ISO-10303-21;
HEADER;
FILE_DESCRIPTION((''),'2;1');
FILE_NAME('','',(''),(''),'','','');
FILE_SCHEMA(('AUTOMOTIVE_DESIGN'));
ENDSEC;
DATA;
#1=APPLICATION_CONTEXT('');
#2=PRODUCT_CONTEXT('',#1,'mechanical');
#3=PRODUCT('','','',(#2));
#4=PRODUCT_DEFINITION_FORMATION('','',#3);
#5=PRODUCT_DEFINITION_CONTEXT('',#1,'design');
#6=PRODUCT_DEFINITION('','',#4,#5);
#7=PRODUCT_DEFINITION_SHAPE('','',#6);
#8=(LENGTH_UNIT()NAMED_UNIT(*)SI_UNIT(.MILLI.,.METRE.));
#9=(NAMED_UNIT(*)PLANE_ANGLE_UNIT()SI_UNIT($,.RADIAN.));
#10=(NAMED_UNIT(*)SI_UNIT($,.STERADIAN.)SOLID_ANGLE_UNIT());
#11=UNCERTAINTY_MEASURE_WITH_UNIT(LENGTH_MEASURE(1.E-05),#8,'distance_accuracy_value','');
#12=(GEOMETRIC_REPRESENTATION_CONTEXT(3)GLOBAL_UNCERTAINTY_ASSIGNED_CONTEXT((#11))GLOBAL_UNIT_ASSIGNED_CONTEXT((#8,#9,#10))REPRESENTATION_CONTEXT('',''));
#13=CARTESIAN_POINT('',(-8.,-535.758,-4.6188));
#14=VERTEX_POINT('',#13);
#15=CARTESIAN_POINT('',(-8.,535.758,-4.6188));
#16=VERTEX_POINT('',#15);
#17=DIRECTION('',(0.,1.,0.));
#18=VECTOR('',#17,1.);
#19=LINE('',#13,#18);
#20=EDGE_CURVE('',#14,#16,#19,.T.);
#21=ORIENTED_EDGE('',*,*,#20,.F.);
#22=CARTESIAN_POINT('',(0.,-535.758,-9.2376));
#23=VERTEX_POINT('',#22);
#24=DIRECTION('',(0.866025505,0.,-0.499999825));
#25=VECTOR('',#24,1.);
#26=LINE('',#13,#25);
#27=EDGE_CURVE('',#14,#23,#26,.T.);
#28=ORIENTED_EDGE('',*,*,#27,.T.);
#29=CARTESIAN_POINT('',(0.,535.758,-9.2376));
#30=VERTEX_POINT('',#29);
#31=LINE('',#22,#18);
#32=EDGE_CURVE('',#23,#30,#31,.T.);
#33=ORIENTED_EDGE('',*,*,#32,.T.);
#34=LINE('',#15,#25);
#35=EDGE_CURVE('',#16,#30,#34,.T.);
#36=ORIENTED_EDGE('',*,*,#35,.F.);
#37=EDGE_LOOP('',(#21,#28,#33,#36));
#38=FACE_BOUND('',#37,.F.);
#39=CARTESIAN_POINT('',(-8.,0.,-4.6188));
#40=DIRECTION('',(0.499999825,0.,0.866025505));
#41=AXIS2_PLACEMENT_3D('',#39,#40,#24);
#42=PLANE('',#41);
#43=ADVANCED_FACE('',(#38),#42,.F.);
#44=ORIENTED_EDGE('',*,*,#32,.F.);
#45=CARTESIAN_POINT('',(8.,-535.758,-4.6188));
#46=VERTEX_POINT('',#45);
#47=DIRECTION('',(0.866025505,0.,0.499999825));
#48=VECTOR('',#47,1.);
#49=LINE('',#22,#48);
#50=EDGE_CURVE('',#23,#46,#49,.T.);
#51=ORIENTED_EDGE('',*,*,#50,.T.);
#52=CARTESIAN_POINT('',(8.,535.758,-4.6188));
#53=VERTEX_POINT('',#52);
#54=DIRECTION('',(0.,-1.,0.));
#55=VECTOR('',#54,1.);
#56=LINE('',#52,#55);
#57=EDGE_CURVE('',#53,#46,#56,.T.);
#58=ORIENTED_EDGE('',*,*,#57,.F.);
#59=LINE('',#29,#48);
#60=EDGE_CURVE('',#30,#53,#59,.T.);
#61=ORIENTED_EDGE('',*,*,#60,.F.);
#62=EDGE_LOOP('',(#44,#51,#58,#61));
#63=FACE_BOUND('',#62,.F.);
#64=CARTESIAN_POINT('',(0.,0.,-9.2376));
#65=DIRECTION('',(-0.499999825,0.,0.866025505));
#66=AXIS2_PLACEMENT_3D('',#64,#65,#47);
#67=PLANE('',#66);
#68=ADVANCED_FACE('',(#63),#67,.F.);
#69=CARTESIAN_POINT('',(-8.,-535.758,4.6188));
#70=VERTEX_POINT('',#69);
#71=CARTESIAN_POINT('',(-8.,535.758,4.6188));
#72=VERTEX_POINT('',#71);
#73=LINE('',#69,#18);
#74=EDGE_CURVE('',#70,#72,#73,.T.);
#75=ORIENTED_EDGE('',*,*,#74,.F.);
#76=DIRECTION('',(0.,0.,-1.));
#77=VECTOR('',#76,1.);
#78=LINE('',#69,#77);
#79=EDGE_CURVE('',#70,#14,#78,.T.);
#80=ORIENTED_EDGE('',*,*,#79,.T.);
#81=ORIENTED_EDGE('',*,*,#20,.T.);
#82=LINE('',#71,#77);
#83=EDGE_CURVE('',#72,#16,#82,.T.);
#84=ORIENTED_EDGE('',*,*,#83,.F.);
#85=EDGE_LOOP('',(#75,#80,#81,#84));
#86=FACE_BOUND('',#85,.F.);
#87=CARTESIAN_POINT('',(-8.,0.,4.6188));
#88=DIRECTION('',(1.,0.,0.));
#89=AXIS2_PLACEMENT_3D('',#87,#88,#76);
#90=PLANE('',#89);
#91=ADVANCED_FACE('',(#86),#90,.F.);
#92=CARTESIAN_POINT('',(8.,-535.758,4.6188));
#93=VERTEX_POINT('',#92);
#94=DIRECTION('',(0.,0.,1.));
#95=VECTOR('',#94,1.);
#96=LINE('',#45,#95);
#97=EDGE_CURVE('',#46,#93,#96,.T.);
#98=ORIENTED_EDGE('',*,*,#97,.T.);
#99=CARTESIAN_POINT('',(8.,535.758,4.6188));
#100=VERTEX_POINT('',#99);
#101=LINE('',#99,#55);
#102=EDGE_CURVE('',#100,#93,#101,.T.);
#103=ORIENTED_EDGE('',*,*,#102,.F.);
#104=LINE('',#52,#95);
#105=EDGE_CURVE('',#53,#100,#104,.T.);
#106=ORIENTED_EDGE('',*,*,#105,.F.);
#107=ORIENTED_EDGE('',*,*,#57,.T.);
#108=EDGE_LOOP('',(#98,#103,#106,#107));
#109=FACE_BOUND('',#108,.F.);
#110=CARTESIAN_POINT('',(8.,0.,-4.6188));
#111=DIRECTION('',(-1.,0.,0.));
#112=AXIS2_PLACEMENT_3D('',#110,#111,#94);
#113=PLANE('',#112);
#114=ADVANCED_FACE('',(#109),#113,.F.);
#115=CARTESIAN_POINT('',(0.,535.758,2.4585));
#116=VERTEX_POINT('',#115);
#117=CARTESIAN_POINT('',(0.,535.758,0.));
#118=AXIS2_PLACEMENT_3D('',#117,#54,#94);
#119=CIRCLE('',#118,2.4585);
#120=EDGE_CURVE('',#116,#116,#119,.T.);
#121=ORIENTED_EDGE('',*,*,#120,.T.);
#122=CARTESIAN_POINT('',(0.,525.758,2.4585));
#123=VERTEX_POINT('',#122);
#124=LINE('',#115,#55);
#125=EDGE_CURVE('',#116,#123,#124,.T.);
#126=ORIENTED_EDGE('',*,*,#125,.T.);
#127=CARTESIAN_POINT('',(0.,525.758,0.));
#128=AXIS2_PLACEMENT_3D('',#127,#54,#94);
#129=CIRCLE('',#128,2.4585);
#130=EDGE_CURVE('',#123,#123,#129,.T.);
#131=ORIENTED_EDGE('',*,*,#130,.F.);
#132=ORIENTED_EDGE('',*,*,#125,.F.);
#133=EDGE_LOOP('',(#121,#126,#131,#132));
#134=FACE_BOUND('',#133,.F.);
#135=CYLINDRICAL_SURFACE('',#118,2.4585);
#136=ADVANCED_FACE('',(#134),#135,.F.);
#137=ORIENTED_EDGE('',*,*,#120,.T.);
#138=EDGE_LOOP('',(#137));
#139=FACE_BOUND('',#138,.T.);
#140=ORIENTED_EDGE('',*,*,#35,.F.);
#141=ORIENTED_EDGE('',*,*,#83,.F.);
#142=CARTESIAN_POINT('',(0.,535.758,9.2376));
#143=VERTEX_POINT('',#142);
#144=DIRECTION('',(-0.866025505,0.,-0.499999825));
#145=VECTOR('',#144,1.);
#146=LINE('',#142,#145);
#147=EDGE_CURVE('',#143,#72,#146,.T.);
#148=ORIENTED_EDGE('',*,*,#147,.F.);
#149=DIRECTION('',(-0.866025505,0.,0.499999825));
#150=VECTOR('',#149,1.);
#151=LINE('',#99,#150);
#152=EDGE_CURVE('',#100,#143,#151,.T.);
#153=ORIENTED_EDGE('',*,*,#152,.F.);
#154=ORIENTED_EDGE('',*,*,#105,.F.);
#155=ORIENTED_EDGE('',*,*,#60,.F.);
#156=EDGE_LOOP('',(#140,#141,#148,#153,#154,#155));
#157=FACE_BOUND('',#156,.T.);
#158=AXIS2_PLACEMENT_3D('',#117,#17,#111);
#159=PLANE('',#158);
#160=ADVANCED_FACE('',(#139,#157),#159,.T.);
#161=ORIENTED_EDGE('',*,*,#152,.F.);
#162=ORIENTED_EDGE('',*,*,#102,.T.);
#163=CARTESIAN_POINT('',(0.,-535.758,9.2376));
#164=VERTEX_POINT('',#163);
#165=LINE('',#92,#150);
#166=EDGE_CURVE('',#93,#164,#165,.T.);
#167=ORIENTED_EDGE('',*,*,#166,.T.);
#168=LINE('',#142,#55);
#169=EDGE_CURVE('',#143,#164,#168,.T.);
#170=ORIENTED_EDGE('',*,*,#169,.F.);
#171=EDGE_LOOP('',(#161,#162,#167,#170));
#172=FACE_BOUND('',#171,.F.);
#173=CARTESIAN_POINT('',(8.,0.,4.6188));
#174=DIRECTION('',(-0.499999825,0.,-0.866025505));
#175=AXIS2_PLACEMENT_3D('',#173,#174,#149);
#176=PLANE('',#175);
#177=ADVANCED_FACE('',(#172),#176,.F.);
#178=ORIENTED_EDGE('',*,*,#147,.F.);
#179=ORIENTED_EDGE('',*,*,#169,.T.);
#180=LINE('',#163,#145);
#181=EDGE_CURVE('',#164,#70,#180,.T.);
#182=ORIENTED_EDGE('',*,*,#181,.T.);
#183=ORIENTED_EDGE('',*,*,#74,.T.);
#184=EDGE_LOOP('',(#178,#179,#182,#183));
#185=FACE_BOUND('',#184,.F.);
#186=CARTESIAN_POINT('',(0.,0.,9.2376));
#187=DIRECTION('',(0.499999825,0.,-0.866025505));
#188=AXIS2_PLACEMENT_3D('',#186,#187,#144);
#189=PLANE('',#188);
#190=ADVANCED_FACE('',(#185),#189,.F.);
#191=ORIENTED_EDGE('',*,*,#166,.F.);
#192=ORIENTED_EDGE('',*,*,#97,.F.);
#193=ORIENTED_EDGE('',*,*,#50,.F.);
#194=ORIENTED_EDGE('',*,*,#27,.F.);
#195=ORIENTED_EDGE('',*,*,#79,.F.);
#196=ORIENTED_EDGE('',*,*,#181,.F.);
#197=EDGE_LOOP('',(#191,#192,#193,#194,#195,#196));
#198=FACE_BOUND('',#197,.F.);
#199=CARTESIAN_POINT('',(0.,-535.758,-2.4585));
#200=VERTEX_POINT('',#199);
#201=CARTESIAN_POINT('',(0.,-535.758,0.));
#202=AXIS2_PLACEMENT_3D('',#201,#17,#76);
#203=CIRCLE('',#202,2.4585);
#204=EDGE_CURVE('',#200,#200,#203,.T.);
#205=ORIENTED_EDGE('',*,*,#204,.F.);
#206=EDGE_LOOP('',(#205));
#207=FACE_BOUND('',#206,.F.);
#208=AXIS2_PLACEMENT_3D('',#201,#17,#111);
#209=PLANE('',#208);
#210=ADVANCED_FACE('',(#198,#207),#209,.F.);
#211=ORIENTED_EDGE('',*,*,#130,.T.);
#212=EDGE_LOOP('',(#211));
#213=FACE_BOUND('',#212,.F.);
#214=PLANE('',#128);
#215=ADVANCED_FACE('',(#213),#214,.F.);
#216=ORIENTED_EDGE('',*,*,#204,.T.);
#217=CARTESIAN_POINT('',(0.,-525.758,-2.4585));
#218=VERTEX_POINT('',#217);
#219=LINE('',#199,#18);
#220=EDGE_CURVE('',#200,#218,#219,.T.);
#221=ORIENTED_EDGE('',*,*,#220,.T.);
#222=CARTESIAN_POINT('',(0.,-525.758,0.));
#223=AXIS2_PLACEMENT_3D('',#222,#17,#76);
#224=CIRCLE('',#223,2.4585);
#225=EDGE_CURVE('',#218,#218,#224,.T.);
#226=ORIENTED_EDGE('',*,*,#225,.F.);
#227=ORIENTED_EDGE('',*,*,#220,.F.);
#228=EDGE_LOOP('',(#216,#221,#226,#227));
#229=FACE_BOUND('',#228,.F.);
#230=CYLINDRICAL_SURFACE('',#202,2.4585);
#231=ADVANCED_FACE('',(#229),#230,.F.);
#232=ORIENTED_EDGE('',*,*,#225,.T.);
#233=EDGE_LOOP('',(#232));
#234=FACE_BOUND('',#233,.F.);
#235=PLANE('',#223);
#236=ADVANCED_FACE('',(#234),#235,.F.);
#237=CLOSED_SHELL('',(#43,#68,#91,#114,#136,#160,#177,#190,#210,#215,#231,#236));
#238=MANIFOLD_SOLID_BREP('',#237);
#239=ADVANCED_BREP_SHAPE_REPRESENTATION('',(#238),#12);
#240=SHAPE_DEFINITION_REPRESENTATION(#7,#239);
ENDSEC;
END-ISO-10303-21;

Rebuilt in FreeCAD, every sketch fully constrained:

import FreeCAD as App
import Part
import Sketcher
Q = App.Units.Quantity

doc = App.newDocument("Part")
body = doc.addObject("PartDesign::Body", "Body")

# Sketch on XZ plane
sketch1 = body.newObject("Sketcher::SketchObject", "Sketch")
sketch1.AttachmentSupport = (doc.getObject("XZ_Plane"), [""])
sketch1.MapMode = "FlatFace"
sketch1.addGeometry([
    Part.LineSegment(App.Vector(8, -5, 0), App.Vector(0, -9, 0)),  # 0
    Part.LineSegment(App.Vector(0, -9, 0), App.Vector(-8, -5, 0)),  # 1
    Part.LineSegment(App.Vector(-8, -5, 0), App.Vector(-8, 5, 0)),  # 2
    Part.LineSegment(App.Vector(-8, 5, 0), App.Vector(0, 9, 0)),  # 3
    Part.LineSegment(App.Vector(0, 9, 0), App.Vector(8, 5, 0)),  # 4
    Part.LineSegment(App.Vector(8, 5, 0), App.Vector(8, -5, 0)),  # 5
], False)
sketch1.addConstraint([
    Sketcher.Constraint("Coincident", 0, 2, 1, 1),
    Sketcher.Constraint("Coincident", 1, 2, 2, 1),
    Sketcher.Constraint("Coincident", 2, 2, 3, 1),
    Sketcher.Constraint("Coincident", 3, 2, 4, 1),
    Sketcher.Constraint("Coincident", 4, 2, 5, 1),
    Sketcher.Constraint("Coincident", 5, 2, 0, 1),
    Sketcher.Constraint("Vertical", 2),
    Sketcher.Constraint("Vertical", 5),
    Sketcher.Constraint("Symmetric", 0, 2, 3, 2, -1, 1),
    Sketcher.Constraint("Symmetric", 1, 2, 4, 2, -1, 1),
    Sketcher.Constraint("PointOnObject", 0, 2, -2),
    Sketcher.Constraint("Parallel", 0, 3),
    Sketcher.Constraint("Horizontal", 2, 2, 4, 2),
    Sketcher.Constraint("DistanceX", 2, 2, 4, 2, Q("16 mm")),
    Sketcher.Constraint("Angle", 0, Q("-150 deg")),
    Sketcher.Constraint("DistanceY", 2, 1, 2, 2, Q("9.2376 mm")),
])
pad1 = body.newObject("PartDesign::Pad", "Pad")
pad1.Profile = sketch1
pad1.Length = 1071.516
pad1.Midplane = True

# Sketch on XZ plane
sketch2 = body.newObject("Sketcher::SketchObject", "Sketch001")
sketch2.AttachmentSupport = (doc.getObject("XZ_Plane"), [""])
sketch2.MapMode = "FlatFace"
sketch2.AttachmentOffset = App.Placement(App.Vector(0, 0, -535.758), App.Rotation())
sketch2.addGeometry(Part.Circle(App.Vector(0, 0, 0), App.Vector(0, 0, 1), 2.5), False)
sketch2.addConstraint([
    Sketcher.Constraint("Coincident", 0, 3, -1, 1),
    Sketcher.Constraint("Diameter", 0, Q("4.917 mm")),
])
doc.recompute()
hole = body.newObject("PartDesign::Hole", "Hole")
hole.Profile = sketch2
hole.ThreadType = "None"
hole.Diameter = 4.917
hole.DepthType = "Dimension"
hole.Depth = 10
hole.DrillPoint = "Flat"
hole.Reversed = True

# Sketch on XZ plane
sketch3 = body.newObject("Sketcher::SketchObject", "Sketch002")
sketch3.AttachmentSupport = (doc.getObject("XZ_Plane"), [""])
sketch3.MapMode = "FlatFace"
sketch3.AttachmentOffset = App.Placement(App.Vector(0, 0, 535.758), App.Rotation())
sketch3.addGeometry(Part.Circle(App.Vector(0, 0, 0), App.Vector(0, 0, 1), 2.5), False)
sketch3.addConstraint([
    Sketcher.Constraint("Coincident", 0, 3, -1, 1),
    Sketcher.Constraint("Diameter", 0, Q("4.917 mm")),
])
doc.recompute()
hole2 = body.newObject("PartDesign::Hole", "Hole001")
hole2.Profile = sketch3
hole2.ThreadType = "None"
hole2.Diameter = 4.917
hole2.DepthType = "Dimension"
hole2.Depth = 10
hole2.DrillPoint = "Flat"

doc.recompute()
